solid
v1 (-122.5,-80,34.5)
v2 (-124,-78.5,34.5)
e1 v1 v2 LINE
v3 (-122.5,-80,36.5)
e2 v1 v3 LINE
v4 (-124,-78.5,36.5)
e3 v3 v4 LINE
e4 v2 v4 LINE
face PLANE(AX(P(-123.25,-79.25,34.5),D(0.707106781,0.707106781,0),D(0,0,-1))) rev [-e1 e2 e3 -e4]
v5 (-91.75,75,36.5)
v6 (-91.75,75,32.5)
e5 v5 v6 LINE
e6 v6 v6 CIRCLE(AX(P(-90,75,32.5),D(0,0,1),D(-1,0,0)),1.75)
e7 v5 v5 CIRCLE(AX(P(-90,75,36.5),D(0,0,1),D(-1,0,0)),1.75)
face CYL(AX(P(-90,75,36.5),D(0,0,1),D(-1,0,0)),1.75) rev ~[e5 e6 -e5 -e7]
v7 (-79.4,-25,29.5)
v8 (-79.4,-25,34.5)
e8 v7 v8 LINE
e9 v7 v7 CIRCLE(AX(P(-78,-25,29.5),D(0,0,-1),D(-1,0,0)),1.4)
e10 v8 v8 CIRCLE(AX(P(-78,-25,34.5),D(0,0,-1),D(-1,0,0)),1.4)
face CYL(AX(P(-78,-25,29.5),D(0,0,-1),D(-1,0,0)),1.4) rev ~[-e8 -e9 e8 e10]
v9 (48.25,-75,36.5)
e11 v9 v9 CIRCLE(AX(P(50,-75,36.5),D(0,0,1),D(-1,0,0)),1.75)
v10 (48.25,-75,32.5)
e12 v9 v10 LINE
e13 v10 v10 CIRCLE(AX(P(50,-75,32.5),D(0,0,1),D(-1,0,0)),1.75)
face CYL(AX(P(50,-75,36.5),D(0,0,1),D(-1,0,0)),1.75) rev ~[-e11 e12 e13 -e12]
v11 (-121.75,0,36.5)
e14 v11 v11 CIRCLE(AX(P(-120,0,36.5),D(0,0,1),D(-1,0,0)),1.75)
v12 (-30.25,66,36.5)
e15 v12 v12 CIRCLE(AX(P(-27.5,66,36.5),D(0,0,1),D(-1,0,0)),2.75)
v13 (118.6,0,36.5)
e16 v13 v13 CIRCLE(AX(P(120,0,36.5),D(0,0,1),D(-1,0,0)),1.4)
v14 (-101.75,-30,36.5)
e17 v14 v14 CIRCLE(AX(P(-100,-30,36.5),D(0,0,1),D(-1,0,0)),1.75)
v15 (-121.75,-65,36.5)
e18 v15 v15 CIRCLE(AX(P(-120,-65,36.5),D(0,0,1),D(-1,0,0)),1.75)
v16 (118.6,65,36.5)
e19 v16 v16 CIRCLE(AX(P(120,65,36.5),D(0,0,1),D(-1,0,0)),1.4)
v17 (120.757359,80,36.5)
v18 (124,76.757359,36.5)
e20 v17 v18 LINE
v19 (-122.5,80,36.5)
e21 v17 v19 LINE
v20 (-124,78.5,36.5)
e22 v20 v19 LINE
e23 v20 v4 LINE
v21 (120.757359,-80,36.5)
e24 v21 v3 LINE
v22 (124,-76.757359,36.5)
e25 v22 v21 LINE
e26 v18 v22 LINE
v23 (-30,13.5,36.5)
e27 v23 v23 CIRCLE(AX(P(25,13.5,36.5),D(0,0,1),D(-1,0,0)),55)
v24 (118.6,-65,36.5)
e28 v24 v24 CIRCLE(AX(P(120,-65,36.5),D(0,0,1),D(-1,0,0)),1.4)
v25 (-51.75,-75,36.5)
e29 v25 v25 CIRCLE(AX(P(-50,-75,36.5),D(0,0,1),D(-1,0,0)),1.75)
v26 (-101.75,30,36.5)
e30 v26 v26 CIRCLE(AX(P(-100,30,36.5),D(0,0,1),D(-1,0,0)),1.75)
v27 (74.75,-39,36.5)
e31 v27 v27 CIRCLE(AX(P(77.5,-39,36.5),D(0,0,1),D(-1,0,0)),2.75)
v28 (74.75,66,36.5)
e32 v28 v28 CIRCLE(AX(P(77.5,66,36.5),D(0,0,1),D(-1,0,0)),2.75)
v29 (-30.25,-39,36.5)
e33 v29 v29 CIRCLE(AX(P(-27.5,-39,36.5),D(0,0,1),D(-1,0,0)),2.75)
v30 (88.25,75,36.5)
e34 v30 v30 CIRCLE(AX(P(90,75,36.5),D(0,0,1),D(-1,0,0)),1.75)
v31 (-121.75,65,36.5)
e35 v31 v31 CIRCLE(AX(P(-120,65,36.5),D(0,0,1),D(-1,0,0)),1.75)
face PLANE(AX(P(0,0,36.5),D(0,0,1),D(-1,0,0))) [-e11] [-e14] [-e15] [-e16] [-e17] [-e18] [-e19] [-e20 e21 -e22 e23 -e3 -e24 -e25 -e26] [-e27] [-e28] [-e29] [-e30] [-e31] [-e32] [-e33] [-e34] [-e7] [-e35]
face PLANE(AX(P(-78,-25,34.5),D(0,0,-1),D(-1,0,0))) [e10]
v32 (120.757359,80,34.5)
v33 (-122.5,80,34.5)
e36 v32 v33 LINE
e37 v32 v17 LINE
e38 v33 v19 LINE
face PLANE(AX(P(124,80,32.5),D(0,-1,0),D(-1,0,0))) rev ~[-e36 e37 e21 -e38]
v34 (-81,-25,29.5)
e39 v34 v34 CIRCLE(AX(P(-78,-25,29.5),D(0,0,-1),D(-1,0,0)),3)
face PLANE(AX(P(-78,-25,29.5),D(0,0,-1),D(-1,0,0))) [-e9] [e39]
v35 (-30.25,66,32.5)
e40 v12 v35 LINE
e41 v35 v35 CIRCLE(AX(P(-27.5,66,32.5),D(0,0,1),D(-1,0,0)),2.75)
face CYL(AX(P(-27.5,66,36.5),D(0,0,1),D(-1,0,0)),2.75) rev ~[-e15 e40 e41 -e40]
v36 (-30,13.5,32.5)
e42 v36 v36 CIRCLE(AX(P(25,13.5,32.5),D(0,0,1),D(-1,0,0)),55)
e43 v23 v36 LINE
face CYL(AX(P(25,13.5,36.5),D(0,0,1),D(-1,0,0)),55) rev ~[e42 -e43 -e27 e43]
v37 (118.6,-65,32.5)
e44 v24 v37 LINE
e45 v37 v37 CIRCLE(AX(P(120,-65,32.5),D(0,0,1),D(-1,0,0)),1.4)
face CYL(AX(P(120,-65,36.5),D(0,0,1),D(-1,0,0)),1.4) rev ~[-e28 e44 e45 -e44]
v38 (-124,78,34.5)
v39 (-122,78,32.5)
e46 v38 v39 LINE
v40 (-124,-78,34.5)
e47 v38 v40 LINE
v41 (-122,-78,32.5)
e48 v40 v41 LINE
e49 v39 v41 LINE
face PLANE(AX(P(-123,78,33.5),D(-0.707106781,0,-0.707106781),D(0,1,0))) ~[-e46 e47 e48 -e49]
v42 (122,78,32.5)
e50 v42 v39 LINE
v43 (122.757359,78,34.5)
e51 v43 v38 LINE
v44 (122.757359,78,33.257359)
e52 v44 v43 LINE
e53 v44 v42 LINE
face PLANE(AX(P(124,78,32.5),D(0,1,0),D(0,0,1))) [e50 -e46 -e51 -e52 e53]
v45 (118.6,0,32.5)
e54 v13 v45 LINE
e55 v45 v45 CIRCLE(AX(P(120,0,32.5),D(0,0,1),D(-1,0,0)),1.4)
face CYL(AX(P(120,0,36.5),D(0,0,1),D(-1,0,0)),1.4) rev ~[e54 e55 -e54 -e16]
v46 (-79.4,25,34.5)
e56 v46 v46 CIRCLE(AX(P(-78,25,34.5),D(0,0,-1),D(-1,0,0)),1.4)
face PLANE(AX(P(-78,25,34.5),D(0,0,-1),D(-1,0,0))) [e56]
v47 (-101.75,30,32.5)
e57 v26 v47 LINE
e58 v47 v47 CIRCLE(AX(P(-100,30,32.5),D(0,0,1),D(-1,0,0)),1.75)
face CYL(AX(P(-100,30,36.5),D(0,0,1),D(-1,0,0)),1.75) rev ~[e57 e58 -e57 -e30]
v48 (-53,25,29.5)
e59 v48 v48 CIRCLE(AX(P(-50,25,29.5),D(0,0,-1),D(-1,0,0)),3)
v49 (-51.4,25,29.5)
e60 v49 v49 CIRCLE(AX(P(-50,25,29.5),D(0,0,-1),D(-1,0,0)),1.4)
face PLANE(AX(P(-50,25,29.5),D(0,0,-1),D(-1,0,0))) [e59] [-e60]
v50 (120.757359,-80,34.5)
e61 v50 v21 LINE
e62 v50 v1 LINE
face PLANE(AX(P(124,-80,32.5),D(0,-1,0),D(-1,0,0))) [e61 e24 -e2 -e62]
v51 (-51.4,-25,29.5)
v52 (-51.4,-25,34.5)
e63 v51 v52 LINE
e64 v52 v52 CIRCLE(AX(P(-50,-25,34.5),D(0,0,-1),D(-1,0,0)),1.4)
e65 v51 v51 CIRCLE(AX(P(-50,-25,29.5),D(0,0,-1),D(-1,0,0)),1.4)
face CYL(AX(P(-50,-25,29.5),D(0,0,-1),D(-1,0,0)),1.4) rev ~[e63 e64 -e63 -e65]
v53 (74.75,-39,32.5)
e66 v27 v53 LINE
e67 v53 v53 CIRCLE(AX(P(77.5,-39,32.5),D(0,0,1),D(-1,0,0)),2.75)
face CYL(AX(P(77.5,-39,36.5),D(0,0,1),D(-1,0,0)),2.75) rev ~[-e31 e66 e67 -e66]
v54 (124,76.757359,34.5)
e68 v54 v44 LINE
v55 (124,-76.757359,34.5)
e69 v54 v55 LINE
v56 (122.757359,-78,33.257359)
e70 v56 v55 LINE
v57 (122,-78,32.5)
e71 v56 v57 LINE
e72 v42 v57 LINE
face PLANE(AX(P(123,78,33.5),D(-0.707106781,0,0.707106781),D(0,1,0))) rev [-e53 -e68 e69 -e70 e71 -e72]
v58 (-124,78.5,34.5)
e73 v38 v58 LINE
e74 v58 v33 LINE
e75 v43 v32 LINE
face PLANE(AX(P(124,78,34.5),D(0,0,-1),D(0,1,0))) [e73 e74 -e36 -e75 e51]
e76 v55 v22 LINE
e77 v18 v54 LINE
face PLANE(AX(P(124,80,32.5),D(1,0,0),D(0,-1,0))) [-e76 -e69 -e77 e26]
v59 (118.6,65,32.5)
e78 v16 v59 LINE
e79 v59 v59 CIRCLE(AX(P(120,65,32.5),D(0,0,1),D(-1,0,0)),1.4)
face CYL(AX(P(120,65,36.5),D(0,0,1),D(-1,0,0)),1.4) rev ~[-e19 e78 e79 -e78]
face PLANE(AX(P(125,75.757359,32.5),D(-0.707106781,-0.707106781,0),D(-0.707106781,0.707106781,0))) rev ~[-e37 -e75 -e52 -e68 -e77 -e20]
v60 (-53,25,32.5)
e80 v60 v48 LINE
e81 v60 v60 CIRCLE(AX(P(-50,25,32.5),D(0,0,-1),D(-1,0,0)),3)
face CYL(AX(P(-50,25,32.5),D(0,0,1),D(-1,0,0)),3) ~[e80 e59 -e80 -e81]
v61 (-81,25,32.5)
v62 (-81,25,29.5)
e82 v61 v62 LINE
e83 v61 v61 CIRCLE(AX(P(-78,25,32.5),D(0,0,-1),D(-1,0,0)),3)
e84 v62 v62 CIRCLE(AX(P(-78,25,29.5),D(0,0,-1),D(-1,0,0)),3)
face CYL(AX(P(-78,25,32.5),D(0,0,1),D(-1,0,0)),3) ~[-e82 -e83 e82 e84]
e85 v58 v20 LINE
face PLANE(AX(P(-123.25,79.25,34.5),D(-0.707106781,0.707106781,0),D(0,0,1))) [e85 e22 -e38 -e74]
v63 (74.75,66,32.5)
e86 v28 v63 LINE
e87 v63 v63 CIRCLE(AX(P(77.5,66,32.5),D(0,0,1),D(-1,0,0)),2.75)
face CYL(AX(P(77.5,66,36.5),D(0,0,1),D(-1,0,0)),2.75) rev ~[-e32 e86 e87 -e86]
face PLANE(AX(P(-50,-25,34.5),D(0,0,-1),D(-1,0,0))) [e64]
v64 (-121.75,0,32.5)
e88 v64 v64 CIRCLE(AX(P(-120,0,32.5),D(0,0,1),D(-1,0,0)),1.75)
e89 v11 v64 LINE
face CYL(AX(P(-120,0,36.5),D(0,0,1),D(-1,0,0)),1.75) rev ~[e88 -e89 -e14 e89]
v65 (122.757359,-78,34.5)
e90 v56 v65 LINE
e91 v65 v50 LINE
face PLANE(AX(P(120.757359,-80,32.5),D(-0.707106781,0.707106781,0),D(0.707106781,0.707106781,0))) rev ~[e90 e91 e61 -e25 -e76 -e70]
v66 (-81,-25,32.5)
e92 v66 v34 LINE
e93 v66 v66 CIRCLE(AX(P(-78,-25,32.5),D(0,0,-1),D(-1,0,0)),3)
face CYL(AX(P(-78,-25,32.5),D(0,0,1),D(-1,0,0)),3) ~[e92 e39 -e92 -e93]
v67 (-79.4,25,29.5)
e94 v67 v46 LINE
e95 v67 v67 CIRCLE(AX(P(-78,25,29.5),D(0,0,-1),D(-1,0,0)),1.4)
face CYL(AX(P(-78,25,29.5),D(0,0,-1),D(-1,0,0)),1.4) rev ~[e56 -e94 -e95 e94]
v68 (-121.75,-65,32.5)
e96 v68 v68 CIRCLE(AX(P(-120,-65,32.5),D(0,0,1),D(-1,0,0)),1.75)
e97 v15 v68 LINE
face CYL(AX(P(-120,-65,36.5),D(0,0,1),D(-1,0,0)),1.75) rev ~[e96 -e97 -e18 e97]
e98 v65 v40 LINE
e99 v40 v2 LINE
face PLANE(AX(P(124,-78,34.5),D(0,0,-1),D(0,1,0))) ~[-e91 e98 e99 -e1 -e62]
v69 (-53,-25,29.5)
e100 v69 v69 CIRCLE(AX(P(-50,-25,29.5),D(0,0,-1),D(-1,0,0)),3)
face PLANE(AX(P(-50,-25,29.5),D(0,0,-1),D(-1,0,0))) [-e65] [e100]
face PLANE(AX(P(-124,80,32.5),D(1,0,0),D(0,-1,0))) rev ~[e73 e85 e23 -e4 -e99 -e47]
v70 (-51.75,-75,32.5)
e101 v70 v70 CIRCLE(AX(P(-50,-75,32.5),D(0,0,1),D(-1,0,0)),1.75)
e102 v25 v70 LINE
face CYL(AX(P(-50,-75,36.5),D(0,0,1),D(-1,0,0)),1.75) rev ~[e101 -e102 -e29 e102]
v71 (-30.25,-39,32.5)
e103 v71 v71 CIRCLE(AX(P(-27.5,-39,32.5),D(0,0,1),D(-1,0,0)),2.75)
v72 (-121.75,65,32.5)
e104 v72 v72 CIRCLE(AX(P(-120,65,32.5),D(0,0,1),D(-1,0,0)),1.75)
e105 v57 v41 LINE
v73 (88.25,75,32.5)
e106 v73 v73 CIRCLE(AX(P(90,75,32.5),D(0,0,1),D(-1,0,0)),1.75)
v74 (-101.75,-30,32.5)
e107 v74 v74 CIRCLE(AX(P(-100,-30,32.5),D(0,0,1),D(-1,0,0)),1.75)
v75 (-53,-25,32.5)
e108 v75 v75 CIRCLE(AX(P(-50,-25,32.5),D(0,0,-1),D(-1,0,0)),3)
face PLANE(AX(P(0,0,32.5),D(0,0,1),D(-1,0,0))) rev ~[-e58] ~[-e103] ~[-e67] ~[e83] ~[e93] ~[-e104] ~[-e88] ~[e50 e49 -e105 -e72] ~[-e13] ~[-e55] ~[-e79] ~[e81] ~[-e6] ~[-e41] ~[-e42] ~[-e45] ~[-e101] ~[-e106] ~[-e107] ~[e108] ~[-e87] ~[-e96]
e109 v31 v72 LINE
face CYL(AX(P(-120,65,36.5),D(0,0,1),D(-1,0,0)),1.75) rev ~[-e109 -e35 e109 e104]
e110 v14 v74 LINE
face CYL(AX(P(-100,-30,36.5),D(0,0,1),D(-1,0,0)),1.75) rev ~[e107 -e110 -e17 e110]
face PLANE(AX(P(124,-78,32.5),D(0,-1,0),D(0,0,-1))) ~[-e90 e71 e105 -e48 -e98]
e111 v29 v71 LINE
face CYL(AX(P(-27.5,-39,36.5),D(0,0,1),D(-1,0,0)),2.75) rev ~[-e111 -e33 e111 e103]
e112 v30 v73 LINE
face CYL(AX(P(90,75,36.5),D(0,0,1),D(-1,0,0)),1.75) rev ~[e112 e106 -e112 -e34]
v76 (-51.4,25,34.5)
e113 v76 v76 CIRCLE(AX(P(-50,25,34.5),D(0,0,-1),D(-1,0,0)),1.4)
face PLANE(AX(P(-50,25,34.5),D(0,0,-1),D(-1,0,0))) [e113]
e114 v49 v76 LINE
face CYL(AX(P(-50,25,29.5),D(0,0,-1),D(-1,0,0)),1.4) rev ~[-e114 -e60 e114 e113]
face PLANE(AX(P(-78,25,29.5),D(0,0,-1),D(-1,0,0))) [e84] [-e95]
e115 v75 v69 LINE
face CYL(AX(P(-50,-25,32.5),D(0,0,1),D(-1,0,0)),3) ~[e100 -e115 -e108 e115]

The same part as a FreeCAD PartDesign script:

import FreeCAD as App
import Part
import Sketcher

V = App.Vector
Q = App.Units.Quantity


def edges_at(feature, points):
    """Names of the edges that pass closest to the given points."""
    edges = feature.Shape.Edges
    near = lambda p: min(range(len(edges)), key=lambda i: edges[i].distToShape(Part.Vertex(*p))[0])
    return sorted({f"Edge{near(p) + 1}" for p in points})


def add_polygon(sketch, points):
    """Adds a closed chain of lines whose ends are joined by coincident constraints."""
    first, n = sketch.GeometryCount, len(points)
    for a, b in zip(points, points[1:] + points[:1]):
        sketch.addGeometry(Part.LineSegment(App.Vector(*a, 0), App.Vector(*b, 0)), False)
    for i in range(n):
        sketch.addConstraint(Sketcher.Constraint("Coincident", first + i, 2, first + (i + 1) % n, 1))

doc = App.newDocument("Part")
body = doc.addObject("PartDesign::Body", "Body")

sketch1 = doc.addObject("Sketcher::SketchObject", "Sketch")
body.addObject(sketch1)
sketch1.AttachmentSupport = (doc.XY_Plane, [""])
sketch1.MapMode = "FlatFace"
add_polygon(sketch1, [(-124, 80), (-124, -80), (124, -80), (124, 80)])
sketch1.addConstraint(Sketcher.Constraint("Vertical", 0))
sketch1.addConstraint(Sketcher.Constraint("Horizontal", 1))
sketch1.addConstraint(Sketcher.Constraint("Vertical", 2))
sketch1.addConstraint(Sketcher.Constraint("Horizontal", 3))
sketch1.addConstraint(Sketcher.Constraint("Symmetric", 0, 2, 2, 2, -1, 1))
sketch1.addConstraint(Sketcher.Constraint("DistanceX", 1, 1, 1, 2, Q("248 mm")))
sketch1.addConstraint(Sketcher.Constraint("DistanceY", 0, 2, 0, 1, Q("160 mm")))
pad1 = doc.addObject("PartDesign::Pad", "Pad")
body.addObject(pad1)
pad1.Profile = sketch1
pad1.Length = 4

sketch2 = doc.addObject("Sketcher::SketchObject", "Sketch001")
body.addObject(sketch2)
sketch2.AttachmentSupport = (doc.XY_Plane, [""])
sketch2.MapMode = "FlatFace"
sketch2.AttachmentOffset = App.Placement(V(0, 0, 4), App.Rotation())
sketch2.addGeometry(Part.Circle(V(-25, -13.5, 0), V(0, 0, 1), 55), False)
sketch2.addGeometry(Part.Circle(V(-77.5, 39, 0), V(0, 0, 1), 2.75), False)
sketch2.addGeometry(Part.Circle(V(27.5, 39, 0), V(0, 0, 1), 2.75), False)
sketch2.addGeometry(Part.Circle(V(27.5, -66, 0), V(0, 0, 1), 2.75), False)
sketch2.addGeometry(Part.Circle(V(-77.5, -66, 0), V(0, 0, 1), 2.75), False)
sketch2.addGeometry(Part.Circle(V(-50, 75, 0), V(0, 0, 1), 1.75), False)
sketch2.addGeometry(Part.Circle(V(90, -75, 0), V(0, 0, 1), 1.75), False)
sketch2.addGeometry(Part.Circle(V(-90, -75, 0), V(0, 0, 1), 1.75), False)
sketch2.addGeometry(Part.Circle(V(120, 65, 0), V(0, 0, 1), 1.75), False)
sketch2.addGeometry(Part.Circle(V(120, -65, 0), V(0, 0, 1), 1.75), False)
sketch2.addGeometry(Part.Circle(V(-120, 65, 0), V(0, 0, 1), 1.4), False)
sketch2.addGeometry(Part.Circle(V(-120, -65, 0), V(0, 0, 1), 1.4), False)
sketch2.addGeometry(Part.Circle(V(100, 30, 0), V(0, 0, 1), 1.75), False)
sketch2.addGeometry(Part.Circle(V(100, -30, 0), V(0, 0, 1), 1.75), False)
sketch2.addGeometry(Part.Circle(V(50, 75, 0), V(0, 0, 1), 1.75), False)
sketch2.addGeometry(Part.Circle(V(-120, 0, 0), V(0, 0, 1), 1.4), False)
sketch2.addGeometry(Part.Circle(V(120, 0, 0), V(0, 0, 1), 1.75), False)
sketch2.addConstraint(Sketcher.Constraint("Equal", 1, 2))
sketch2.addConstraint(Sketcher.Constraint("Equal", 2, 3))
sketch2.addConstraint(Sketcher.Constraint("Equal", 3, 4))
sketch2.addConstraint(Sketcher.Constraint("Equal", 5, 6))
sketch2.addConstraint(Sketcher.Constraint("Equal", 6, 7))
sketch2.addConstraint(Sketcher.Constraint("Equal", 7, 8))
sketch2.addConstraint(Sketcher.Constraint("Equal", 8, 9))
sketch2.addConstraint(Sketcher.Constraint("Equal", 10, 11))
sketch2.addConstraint(Sketcher.Constraint("Equal", 9, 12))
sketch2.addConstraint(Sketcher.Constraint("Equal", 12, 13))
sketch2.addConstraint(Sketcher.Constraint("Equal", 13, 14))
sketch2.addConstraint(Sketcher.Constraint("Equal", 11, 15))
sketch2.addConstraint(Sketcher.Constraint("Equal", 14, 16))
sketch2.addConstraint(Sketcher.Constraint("Symmetric", 9, 3, 10, 3, -1, 1))
sketch2.addConstraint(Sketcher.Constraint("Symmetric", 8, 3, 11, 3, -1, 1))
sketch2.addConstraint(Sketcher.Constraint("Symmetric", 15, 3, 16, 3, -1, 1))
sketch2.addConstraint(Sketcher.Constraint("Symmetric", 6, 3, 7, 3, -2))
sketch2.addConstraint(Sketcher.Constraint("Symmetric", 8, 3, 10, 3, -2))
sketch2.addConstraint(Sketcher.Constraint("Symmetric", 5, 3, 14, 3, -2))
sketch2.addConstraint(Sketcher.Constraint("Symmetric", 12, 3, 13, 3, -1))
sketch2.addConstraint(Sketcher.Constraint("PointOnObject", 15, 3, -1))
sketch2.addConstraint(Sketcher.Constraint("Horizontal", 1, 3, 2, 3))
sketch2.addConstraint(Sketcher.Constraint("Horizontal", 3, 3, 4, 3))
sketch2.addConstraint(Sketcher.Constraint("Vertical", 2, 3, 3, 3))
sketch2.addConstraint(Sketcher.Constraint("Vertical", 1, 3, 4, 3))
sketch2.addConstraint(Sketcher.Constraint("Vertical", 11, 3, 15, 3))
sketch2.addConstraint(Sketcher.Constraint("Diameter", 0, Q("110 mm")))
sketch2.addConstraint(Sketcher.Constraint("Diameter", 1, Q("5.5 mm")))
sketch2.addConstraint(Sketcher.Constraint("Diameter", 5, Q("3.5 mm")))
sketch2.addConstraint(Sketcher.Constraint("Diameter", 10, Q("2.8 mm")))
sketch2.addConstraint(Sketcher.Constraint("DistanceX", 0, 3, -1, 1, Q("25 mm")))
sketch2.addConstraint(Sketcher.Constraint("DistanceY", -1, 1, 1, 3, Q("39 mm")))
sketch2.addConstraint(Sketcher.Constraint("DistanceY", 3, 3, -1, 1, Q("66 mm")))
sketch2.addConstraint(Sketcher.Constraint("DistanceX", 5, 3, -1, 1, Q("50 mm")))
sketch2.addConstraint(Sketcher.Constraint("DistanceY", -1, 1, 5, 3, Q("75 mm")))
sketch2.addConstraint(Sketcher.Constraint("DistanceX", -1, 1, 6, 3, Q("90 mm")))
sketch2.addConstraint(Sketcher.Constraint("DistanceY", 6, 3, -1, 1, Q("75 mm")))
sketch2.addConstraint(Sketcher.Constraint("DistanceX", -1, 1, 8, 3, Q("120 mm")))
sketch2.addConstraint(Sketcher.Constraint("DistanceY", -1, 1, 8, 3, Q("65 mm")))
sketch2.addConstraint(Sketcher.Constraint("DistanceX", -1, 1, 12, 3, Q("100 mm")))
sketch2.addConstraint(Sketcher.Constraint("DistanceY", -1, 1, 12, 3, Q("30 mm")))
sketch2.addConstraint(Sketcher.Constraint("DistanceX", 1, 3, 2, 3, Q("105 mm")))
sketch2.addConstraint(Sketcher.Constraint("DistanceY", 0, 3, -1, 1, Q("13.5 mm")))
sketch2.addConstraint(Sketcher.Constraint("DistanceX", 1, 3, -1, 1, Q("77.5 mm")))
pocket1 = doc.addObject("PartDesign::Pocket", "Pocket")
body.addObject(pocket1)
pocket1.Profile = sketch2
pocket1.Length = 5

sketch3 = doc.addObject("Sketcher::SketchObject", "Sketch002")
body.addObject(sketch3)
sketch3.AttachmentSupport = (doc.YZ_Plane, [""])
sketch3.MapMode = "FlatFace"
sketch3.AttachmentOffset = App.Placement(V(0, 0, -124), App.Rotation())
add_polygon(sketch3, [(-78, 2), (-78, 0), (-80, 0), (-80, 2)])
sketch3.addConstraint(Sketcher.Constraint("Vertical", 0))
sketch3.addConstraint(Sketcher.Constraint("Horizontal", 1))
sketch3.addConstraint(Sketcher.Constraint("Vertical", 2))
sketch3.addConstraint(Sketcher.Constraint("Horizontal", 3))
sketch3.addConstraint(Sketcher.Constraint("PointOnObject", 0, 2, -1))
sketch3.addConstraint(Sketcher.Constraint("Equal", 3, 0))
sketch3.addConstraint(Sketcher.Constraint("DistanceX", 1, 2, 1, 1, Q("2 mm")))
sketch3.addConstraint(Sketcher.Constraint("DistanceX", 0, 2, -1, 1, Q("78 mm")))
pocket2 = doc.addObject("PartDesign::Pocket", "Pocket001")
body.addObject(pocket2)
pocket2.Profile = sketch3
pocket2.Type = "ThroughAll"
pocket2.Reversed = True
doc.recompute()

mirrored = doc.addObject("PartDesign::Mirrored", "Mirrored")
body.addObject(mirrored)
mirrored.Originals = [pocket2]
mirrored.MirrorPlane = (doc.XZ_Plane, [""])
body.Tip = mirrored
doc.recompute()

chamfer = doc.addObject("PartDesign::Chamfer", "Chamfer")
body.addObject(chamfer)
chamfer.Base = (mirrored, edges_at(mirrored, [(-124, 0, 0)]))
chamfer.Size = 2

sketch4 = doc.addObject("Sketcher::SketchObject", "Sketch003")
body.addObject(sketch4)
sketch4.AttachmentSupport = (doc.XY_Plane, [""])
sketch4.MapMode = "FlatFace"
add_polygon(sketch4, [(-125, -75.757359), (-120.757359, -80), (-125, -80)])
add_polygon(sketch4, [(-120.757359, 80), (-125, 75.757359), (-125, 80)])
sketch4.addConstraint(Sketcher.Constraint("Horizontal", 1))
sketch4.addConstraint(Sketcher.Constraint("Vertical", 2))
sketch4.addConstraint(Sketcher.Constraint("Vertical", 4))
sketch4.addConstraint(Sketcher.Constraint("Horizontal", 5))
sketch4.addConstraint(Sketcher.Constraint("Symmetric", 2, 2, 3, 2, -1))
sketch4.addConstraint(Sketcher.Constraint("Symmetric", 0, 2, 5, 2, -1))
sketch4.addConstraint(Sketcher.Constraint("Perpendicular", 0, 3))
sketch4.addConstraint(Sketcher.Constraint("Distance", 0, Q("6 mm")))
sketch4.addConstraint(Sketcher.Constraint("DistanceY", 0, 2, -1, 1, Q("80 mm")))
sketch4.addConstraint(Sketcher.Constraint("DistanceX", 1, 2, -1, 1, Q("125 mm")))
pocket3 = doc.addObject("PartDesign::Pocket", "Pocket002")
body.addObject(pocket3)
pocket3.Profile = sketch4
pocket3.Length = 5
pocket3.Reversed = True
doc.recompute()

chamfer2 = doc.addObject("PartDesign::Chamfer", "Chamfer001")
body.addObject(chamfer2)
chamfer2.Base = (pocket3, edges_at(pocket3, [(124, -80, 3), (124, 80, 3)]))
chamfer2.Size = 1.5
doc.recompute()

chamfer3 = doc.addObject("PartDesign::Chamfer", "Chamfer002")
body.addObject(chamfer3)
chamfer3.Base = (chamfer2, edges_at(chamfer2, [(124, 0, 0)]))
chamfer3.Size = 2

sketch5 = doc.addObject("Sketcher::SketchObject", "Sketch004")
body.addObject(sketch5)
sketch5.AttachmentSupport = (doc.XY_Plane, [""])
sketch5.MapMode = "FlatFace"
sketch5.addGeometry(Part.Circle(V(50, -25, 0), V(0, 0, 1), 3), False)
sketch5.addGeometry(Part.Circle(V(78, -25, 0), V(0, 0, 1), 3), False)
sketch5.addGeometry(Part.Circle(V(50, 25, 0), V(0, 0, 1), 3), False)
sketch5.addGeometry(Part.Circle(V(78, 25, 0), V(0, 0, 1), 3), False)
sketch5.addConstraint(Sketcher.Constraint("Equal", 0, 1))
sketch5.addConstraint(Sketcher.Constraint("Equal", 1, 2))
sketch5.addConstraint(Sketcher.Constraint("Equal", 2, 3))
sketch5.addConstraint(Sketcher.Constraint("Symmetric", 0, 3, 2, 3, -1))
sketch5.addConstraint(Sketcher.Constraint("Symmetric", 1, 3, 3, 3, -1))
sketch5.addConstraint(Sketcher.Constraint("Horizontal", 0, 3, 1, 3))
sketch5.addConstraint(Sketcher.Constraint("Diameter", 0, Q("6 mm")))
sketch5.addConstraint(Sketcher.Constraint("DistanceX", -1, 1, 0, 3, Q("50 mm")))
sketch5.addConstraint(Sketcher.Constraint("DistanceY", 0, 3, -1, 1, Q("25 mm")))
sketch5.addConstraint(Sketcher.Constraint("DistanceX", -1, 1, 1, 3, Q("78 mm")))
pad2 = doc.addObject("PartDesign::Pad", "Pad001")
body.addObject(pad2)
pad2.Profile = sketch5
pad2.Length = 3
pad2.Reversed = True

sketch6 = doc.addObject("Sketcher::SketchObject", "Sketch005")
body.addObject(sketch6)
sketch6.AttachmentSupport = (doc.XY_Plane, [""])
sketch6.MapMode = "FlatFace"
sketch6.AttachmentOffset = App.Placement(V(0, 0, -3), App.Rotation())
sketch6.addGeometry(Part.Circle(V(50, -25, 0), V(0, 0, 1), 1.4), False)
sketch6.addGeometry(Part.Circle(V(78, -25, 0), V(0, 0, 1), 1.4), False)
sketch6.addGeometry(Part.Circle(V(50, 25, 0), V(0, 0, 1), 1.4), False)
sketch6.addGeometry(Part.Circle(V(78, 25, 0), V(0, 0, 1), 1.4), False)
sketch6.addConstraint(Sketcher.Constraint("Equal", 0, 1))
sketch6.addConstraint(Sketcher.Constraint("Equal", 1, 2))
sketch6.addConstraint(Sketcher.Constraint("Equal", 2, 3))
sketch6.addConstraint(Sketcher.Constraint("Symmetric", 0, 3, 2, 3, -1))
sketch6.addConstraint(Sketcher.Constraint("Symmetric", 1, 3, 3, 3, -1))
sketch6.addConstraint(Sketcher.Constraint("Horizontal", 0, 3, 1, 3))
sketch6.addConstraint(Sketcher.Constraint("Diameter", 0, Q("2.8 mm")))
sketch6.addConstraint(Sketcher.Constraint("DistanceX", -1, 1, 0, 3, Q("50 mm")))
sketch6.addConstraint(Sketcher.Constraint("DistanceY", 0, 3, -1, 1, Q("25 mm")))
sketch6.addConstraint(Sketcher.Constraint("DistanceX", -1, 1, 1, 3, Q("78 mm")))
pocket4 = doc.addObject("PartDesign::Pocket", "Pocket003")
body.addObject(pocket4)
pocket4.Profile = sketch6
pocket4.Length = 5
pocket4.Reversed = True
body2 = doc.addObject("PartDesign::Body", "Body001")
doc.recompute()

body.Placement = App.Placement(V(0, 0, 32.5), App.Rotation(V(0, 0, 1), 180))
boolean = doc.addObject("PartDesign::Boolean", "Boolean")
body2.addObject(boolean)
boolean.Type = "Fuse"
boolean.addObjects([body])

doc.recompute()
